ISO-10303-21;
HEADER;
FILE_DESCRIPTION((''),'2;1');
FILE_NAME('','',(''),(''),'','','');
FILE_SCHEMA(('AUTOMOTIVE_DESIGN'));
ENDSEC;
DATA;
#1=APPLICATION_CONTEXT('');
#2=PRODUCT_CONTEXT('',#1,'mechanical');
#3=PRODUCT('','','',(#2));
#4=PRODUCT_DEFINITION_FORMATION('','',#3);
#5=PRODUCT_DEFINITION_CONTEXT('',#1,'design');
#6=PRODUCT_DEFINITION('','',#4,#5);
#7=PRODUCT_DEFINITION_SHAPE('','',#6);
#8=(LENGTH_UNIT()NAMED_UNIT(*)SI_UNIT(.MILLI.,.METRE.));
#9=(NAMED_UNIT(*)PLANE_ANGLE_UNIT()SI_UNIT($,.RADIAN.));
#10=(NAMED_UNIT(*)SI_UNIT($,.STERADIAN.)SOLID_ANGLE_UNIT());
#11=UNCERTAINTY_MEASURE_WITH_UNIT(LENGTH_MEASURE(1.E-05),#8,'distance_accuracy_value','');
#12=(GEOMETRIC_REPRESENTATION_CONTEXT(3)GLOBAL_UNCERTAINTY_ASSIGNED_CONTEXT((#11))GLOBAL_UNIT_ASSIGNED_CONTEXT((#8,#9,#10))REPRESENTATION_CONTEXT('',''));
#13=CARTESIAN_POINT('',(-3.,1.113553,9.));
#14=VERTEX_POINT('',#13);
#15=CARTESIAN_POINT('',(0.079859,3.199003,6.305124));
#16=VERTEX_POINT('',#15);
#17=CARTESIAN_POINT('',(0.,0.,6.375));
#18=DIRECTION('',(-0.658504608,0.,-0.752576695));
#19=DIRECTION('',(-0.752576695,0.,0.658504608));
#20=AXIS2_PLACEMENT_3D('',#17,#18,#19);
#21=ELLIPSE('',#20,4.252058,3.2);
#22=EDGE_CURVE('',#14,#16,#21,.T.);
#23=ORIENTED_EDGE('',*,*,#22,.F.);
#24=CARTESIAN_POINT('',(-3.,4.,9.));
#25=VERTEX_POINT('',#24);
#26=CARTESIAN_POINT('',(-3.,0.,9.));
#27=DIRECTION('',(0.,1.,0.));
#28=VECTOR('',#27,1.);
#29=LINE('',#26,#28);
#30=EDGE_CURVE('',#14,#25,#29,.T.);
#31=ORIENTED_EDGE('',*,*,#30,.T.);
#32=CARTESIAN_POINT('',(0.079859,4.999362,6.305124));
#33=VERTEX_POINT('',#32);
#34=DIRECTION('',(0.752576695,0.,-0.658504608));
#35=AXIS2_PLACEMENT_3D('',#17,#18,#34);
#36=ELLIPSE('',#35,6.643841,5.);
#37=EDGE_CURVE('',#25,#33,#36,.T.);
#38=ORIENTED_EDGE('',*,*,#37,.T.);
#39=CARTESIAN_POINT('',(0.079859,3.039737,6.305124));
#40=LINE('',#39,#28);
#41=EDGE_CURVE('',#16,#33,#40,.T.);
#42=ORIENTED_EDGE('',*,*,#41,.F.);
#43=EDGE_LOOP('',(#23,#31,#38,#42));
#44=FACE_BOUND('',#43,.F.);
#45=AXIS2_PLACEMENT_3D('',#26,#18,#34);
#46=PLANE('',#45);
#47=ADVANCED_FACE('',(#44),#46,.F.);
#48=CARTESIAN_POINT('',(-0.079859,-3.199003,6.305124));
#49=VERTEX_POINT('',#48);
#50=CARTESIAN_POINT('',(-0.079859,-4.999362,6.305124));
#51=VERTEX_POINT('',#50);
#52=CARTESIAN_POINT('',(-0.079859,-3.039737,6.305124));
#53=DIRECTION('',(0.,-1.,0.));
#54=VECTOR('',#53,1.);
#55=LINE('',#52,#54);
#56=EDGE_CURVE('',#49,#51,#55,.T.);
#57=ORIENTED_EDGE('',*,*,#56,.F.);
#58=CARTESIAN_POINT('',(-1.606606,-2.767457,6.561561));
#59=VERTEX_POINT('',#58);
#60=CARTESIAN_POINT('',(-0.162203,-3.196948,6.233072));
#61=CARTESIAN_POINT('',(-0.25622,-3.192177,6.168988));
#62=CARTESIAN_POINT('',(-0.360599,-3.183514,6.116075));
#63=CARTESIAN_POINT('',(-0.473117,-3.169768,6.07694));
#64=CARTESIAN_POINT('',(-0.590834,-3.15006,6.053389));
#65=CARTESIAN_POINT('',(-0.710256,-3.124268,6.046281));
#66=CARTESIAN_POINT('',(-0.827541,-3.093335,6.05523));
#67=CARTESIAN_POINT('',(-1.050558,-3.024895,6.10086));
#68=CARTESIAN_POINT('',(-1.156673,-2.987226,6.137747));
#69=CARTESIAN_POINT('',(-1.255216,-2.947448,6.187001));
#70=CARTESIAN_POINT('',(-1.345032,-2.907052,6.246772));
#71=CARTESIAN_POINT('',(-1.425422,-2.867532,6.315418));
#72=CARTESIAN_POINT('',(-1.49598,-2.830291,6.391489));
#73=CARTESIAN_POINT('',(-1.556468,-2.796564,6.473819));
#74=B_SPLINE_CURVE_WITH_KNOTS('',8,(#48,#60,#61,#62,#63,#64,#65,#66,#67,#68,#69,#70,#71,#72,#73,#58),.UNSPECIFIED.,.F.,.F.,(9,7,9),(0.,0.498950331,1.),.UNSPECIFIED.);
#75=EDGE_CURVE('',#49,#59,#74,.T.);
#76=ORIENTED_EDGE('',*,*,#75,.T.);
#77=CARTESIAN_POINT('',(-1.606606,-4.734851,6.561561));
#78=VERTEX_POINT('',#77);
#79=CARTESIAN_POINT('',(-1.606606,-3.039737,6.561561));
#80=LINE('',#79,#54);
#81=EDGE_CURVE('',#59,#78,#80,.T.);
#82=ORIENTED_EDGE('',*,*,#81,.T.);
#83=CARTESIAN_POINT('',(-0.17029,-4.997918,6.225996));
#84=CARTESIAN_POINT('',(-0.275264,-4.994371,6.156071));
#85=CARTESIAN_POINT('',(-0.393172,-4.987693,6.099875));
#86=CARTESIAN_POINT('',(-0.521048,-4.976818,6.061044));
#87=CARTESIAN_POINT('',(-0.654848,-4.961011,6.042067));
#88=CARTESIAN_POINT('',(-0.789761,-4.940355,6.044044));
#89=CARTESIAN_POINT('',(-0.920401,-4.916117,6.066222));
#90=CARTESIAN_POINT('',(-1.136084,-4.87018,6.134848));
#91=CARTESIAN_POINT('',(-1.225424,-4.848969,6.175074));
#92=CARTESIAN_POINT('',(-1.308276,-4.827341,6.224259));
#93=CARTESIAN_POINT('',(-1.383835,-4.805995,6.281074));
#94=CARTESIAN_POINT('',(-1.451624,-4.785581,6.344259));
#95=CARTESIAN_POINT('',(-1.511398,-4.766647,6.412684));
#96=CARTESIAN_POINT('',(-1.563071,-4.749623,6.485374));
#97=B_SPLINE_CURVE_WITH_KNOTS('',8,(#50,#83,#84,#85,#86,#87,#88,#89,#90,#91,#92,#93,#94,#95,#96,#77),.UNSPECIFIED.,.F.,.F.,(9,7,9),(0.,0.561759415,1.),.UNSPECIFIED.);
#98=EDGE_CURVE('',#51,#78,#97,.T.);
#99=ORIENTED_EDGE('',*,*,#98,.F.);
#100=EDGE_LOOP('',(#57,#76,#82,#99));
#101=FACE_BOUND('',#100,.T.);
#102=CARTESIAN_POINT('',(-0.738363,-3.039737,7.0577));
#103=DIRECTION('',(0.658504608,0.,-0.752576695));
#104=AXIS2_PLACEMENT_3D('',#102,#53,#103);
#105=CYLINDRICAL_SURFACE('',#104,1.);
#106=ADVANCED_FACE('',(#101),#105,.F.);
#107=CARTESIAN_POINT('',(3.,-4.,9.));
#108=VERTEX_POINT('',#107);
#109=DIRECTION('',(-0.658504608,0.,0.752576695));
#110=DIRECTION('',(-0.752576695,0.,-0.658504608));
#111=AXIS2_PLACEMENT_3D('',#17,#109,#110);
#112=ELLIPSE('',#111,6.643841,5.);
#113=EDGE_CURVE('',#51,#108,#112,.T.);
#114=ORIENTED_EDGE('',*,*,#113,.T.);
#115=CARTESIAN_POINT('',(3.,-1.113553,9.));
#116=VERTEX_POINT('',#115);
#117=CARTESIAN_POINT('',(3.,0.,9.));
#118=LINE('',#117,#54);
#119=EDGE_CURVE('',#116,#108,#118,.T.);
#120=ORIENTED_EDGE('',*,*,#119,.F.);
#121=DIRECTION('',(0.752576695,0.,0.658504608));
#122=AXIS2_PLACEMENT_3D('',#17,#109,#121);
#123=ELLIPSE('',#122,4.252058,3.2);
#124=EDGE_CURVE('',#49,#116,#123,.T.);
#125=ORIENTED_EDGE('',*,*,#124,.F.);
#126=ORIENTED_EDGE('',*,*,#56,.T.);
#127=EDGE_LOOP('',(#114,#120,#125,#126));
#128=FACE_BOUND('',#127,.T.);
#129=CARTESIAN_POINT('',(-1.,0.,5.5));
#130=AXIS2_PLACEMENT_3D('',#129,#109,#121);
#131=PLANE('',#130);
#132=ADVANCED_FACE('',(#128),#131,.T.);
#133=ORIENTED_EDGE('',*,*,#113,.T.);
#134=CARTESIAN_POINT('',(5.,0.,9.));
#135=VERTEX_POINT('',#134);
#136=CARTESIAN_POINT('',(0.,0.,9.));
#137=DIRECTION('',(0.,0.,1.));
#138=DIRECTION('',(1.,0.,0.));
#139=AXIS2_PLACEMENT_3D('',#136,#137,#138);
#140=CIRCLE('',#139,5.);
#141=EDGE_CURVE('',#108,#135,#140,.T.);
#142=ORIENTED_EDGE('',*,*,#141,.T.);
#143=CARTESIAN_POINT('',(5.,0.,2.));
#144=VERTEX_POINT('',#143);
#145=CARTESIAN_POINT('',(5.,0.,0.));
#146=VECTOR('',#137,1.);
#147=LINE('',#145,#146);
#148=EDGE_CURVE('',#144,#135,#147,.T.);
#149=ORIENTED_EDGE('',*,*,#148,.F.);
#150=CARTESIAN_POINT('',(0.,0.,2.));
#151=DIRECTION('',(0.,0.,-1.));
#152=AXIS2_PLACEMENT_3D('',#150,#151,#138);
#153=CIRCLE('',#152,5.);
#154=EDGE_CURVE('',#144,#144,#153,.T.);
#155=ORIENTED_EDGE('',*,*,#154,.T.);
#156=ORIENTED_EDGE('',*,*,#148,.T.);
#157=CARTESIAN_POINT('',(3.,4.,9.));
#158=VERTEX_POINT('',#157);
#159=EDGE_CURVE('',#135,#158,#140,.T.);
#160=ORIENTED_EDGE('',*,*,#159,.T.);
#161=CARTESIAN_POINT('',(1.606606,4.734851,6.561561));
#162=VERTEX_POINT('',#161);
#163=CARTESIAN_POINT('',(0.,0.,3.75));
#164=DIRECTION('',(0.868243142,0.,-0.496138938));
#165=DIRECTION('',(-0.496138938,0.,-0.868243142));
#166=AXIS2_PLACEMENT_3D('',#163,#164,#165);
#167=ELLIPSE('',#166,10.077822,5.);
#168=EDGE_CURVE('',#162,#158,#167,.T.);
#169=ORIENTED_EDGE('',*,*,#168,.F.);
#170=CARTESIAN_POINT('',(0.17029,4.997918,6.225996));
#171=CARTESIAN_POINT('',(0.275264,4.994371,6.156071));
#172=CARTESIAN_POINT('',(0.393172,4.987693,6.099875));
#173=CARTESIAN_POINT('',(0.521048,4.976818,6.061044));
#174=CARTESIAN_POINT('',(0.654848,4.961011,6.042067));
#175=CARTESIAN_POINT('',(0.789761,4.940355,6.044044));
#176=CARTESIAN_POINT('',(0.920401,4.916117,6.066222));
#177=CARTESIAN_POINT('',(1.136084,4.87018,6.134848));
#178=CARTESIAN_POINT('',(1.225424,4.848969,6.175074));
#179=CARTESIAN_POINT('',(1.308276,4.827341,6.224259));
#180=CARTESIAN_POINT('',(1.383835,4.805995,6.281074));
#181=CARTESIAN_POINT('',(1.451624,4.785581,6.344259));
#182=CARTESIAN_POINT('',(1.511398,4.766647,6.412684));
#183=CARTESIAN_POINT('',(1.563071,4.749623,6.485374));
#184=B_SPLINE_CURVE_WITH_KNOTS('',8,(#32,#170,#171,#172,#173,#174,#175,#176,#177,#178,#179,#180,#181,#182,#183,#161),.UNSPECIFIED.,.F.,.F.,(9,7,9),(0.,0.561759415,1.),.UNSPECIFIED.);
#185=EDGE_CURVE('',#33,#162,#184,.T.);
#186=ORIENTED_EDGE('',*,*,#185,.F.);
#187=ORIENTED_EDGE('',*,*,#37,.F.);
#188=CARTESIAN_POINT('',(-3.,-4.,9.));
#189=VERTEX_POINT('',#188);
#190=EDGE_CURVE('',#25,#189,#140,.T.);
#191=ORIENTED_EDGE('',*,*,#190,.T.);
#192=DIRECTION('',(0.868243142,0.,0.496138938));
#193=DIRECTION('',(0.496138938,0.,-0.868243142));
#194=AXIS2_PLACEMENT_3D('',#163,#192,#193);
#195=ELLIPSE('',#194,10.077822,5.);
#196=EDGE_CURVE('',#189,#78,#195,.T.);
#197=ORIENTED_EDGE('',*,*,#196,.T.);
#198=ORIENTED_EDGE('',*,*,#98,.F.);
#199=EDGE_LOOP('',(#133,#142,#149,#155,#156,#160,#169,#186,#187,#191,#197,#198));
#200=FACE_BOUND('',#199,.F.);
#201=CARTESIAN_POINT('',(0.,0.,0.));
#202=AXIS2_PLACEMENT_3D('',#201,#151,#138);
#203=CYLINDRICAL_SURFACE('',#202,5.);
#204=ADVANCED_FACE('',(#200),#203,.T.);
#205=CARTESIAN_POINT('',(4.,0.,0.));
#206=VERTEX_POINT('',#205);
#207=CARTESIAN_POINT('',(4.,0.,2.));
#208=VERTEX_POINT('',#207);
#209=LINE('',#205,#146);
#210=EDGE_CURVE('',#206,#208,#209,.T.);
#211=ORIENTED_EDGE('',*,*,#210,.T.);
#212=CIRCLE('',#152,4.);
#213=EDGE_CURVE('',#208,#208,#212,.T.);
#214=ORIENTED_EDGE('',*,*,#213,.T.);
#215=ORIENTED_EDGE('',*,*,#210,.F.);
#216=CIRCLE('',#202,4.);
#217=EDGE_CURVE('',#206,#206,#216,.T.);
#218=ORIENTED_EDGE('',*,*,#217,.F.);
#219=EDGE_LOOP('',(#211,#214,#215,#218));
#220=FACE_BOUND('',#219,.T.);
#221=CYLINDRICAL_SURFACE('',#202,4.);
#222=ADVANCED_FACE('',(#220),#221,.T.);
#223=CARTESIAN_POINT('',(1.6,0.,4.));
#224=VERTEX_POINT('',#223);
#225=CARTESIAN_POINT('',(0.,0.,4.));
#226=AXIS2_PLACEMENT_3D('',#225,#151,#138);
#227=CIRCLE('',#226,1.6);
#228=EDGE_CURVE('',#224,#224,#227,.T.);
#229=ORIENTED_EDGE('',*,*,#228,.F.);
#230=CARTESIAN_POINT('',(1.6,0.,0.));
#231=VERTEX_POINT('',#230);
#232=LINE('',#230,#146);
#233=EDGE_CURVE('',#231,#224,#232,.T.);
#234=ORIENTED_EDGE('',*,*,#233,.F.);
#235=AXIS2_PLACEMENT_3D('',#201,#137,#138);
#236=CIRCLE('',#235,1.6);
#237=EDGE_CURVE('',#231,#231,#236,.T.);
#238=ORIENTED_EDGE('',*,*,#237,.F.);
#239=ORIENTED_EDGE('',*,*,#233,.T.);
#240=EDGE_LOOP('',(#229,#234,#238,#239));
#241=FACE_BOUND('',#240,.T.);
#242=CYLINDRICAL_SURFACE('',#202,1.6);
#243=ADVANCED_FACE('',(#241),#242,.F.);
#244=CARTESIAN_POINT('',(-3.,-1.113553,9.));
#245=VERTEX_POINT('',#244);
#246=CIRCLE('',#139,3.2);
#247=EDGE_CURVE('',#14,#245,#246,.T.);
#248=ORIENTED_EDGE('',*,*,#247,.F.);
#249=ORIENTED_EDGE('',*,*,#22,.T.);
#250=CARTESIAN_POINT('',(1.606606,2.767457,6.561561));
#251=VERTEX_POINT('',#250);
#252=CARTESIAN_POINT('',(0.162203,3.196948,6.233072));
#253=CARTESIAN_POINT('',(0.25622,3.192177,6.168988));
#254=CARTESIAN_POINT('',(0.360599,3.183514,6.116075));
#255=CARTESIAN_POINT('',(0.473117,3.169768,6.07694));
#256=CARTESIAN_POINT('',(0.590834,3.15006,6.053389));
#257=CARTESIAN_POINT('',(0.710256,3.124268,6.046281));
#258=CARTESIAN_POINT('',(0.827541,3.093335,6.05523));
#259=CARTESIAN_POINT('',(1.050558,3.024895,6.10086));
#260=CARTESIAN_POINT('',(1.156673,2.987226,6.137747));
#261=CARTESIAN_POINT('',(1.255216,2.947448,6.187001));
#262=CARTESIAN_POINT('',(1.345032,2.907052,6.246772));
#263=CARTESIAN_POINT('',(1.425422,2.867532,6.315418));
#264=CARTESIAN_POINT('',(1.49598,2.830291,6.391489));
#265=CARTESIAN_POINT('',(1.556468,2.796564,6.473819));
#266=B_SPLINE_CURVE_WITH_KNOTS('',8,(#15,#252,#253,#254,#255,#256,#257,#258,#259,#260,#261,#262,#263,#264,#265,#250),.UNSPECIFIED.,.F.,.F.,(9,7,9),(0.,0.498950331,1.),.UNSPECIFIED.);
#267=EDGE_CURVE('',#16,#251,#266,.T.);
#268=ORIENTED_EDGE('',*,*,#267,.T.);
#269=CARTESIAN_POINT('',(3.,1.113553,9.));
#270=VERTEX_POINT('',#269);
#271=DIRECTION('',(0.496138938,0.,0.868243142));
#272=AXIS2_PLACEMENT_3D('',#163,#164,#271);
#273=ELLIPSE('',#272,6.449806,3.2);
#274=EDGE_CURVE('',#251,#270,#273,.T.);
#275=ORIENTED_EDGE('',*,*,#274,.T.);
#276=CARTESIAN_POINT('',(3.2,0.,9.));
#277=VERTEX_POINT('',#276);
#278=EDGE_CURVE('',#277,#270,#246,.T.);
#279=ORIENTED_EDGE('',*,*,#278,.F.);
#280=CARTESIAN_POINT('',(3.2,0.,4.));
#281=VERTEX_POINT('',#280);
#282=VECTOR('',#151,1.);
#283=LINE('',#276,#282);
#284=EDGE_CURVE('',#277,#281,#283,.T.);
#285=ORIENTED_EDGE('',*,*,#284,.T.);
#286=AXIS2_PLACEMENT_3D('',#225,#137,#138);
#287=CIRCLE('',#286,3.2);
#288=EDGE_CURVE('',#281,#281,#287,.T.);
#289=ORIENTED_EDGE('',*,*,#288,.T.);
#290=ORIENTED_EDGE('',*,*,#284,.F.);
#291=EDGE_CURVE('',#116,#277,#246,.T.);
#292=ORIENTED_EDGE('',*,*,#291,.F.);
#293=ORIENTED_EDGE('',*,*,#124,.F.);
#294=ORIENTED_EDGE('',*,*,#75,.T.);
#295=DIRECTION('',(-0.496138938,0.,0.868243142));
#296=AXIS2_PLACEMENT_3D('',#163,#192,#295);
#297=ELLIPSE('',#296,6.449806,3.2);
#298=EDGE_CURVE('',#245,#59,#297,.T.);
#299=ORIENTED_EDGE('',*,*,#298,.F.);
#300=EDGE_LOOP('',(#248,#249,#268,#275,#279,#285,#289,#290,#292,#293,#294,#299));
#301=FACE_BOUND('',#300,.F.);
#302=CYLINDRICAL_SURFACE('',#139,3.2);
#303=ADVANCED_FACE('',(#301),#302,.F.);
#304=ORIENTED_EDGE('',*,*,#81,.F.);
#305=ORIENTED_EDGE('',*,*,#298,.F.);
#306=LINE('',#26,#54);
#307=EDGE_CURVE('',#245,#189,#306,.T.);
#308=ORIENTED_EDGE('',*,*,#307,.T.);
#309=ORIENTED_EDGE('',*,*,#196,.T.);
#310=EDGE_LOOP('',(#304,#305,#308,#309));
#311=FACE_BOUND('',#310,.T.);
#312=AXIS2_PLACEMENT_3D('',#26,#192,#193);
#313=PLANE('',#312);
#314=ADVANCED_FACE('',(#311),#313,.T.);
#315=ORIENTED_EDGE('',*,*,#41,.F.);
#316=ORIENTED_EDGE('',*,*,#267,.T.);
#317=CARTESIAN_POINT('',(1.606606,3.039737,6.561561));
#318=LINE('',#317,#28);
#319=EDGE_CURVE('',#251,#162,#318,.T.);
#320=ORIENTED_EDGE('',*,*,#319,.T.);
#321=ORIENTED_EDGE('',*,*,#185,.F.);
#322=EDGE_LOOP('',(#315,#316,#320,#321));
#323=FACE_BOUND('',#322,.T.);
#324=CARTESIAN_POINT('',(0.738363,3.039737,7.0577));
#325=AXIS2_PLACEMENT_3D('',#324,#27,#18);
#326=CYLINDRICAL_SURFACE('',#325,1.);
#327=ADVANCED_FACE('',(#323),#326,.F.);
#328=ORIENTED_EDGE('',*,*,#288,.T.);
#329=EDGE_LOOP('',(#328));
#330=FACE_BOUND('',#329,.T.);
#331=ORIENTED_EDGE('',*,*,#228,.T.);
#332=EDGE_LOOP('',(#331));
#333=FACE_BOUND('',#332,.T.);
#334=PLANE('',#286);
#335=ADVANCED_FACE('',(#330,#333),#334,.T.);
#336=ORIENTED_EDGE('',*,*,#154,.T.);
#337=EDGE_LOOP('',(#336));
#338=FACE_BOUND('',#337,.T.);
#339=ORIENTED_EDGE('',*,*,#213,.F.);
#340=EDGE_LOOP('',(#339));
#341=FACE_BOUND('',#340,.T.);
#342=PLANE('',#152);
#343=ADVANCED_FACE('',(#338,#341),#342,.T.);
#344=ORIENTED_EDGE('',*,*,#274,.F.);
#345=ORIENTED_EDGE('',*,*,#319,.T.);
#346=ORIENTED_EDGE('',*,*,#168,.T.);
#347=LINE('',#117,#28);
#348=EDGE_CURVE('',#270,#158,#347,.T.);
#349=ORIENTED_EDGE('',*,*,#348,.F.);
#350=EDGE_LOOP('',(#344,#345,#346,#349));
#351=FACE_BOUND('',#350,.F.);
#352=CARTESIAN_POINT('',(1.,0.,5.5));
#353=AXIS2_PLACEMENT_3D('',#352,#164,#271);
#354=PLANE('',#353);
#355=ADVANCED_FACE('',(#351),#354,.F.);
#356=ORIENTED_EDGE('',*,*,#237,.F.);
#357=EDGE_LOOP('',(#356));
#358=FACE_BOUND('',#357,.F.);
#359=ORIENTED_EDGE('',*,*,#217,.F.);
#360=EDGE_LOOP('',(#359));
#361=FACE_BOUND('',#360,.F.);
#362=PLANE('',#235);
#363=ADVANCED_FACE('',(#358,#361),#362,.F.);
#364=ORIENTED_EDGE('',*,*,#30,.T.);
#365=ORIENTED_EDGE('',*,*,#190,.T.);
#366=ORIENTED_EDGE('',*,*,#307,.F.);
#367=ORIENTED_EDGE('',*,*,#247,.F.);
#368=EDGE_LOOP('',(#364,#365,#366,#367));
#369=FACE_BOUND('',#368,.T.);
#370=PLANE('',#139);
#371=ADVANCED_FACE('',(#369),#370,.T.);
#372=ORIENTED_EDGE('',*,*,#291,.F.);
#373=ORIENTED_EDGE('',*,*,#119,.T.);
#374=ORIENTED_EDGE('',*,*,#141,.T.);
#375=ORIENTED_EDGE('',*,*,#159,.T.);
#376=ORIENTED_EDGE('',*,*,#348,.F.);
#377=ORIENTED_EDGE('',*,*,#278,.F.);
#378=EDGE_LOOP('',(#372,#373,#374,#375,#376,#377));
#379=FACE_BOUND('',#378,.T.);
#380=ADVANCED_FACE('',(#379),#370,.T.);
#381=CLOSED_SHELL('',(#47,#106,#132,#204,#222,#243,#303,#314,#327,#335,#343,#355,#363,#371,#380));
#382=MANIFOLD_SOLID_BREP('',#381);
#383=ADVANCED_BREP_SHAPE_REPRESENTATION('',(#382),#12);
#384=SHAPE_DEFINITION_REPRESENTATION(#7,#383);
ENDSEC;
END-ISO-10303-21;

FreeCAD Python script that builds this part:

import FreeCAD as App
import Part
import Sketcher

V = App.Vector


def edges_at(feature, points):
    """Names of the edges that pass closest to the given points."""
    edges = feature.Shape.Edges
    near = lambda p: min(range(len(edges)), key=lambda i: edges[i].distToShape(Part.Vertex(*p))[0])
    return sorted({f"Edge{near(p) + 1}" for p in points})


def add_polygon(sketch, points):
    """Adds a closed chain of lines whose ends are joined by coincident constraints."""
    first, n = sketch.GeometryCount, len(points)
    for a, b in zip(points, points[1:] + points[:1]):
        sketch.addGeometry(Part.LineSegment(App.Vector(*a, 0), App.Vector(*b, 0)), False)
    for i in range(n):
        sketch.addConstraint(Sketcher.Constraint("Coincident", first + i, 2, first + (i + 1) % n, 1))

doc = App.newDocument("Part")
params = doc.addObject("Spreadsheet::Sheet", "Params")
for row, (alias, value) in enumerate([
    ("sketch1_width", "6 mm"),
    ("pad1_length", "10 mm"),
    ("sketch2_width", "6 mm"),
    ("pad2_length", "12 mm"),
    ("sketch3_diameter", "10 mm"),
    ("sketch3_diameter2", "3.2 mm"),
    ("pad3_length", "9 mm"),
    ("sketch4_diameter", "6.4 mm"),
    ("pocket1_length", "5 mm"),
    ("sketch5_diameter", "10 mm"),
    ("sketch5_diameter2", "8 mm"),
    ("pocket2_length", "2 mm"),
    ("fillet_radius", "1 mm"),
], start=1):
    params.set(f"A{row}", alias)
    params.set(f"B{row}", "=" + value)
    params.setAlias(f"B{row}", alias)

body = doc.addObject("PartDesign::Body", "Body")

sketch1 = body.newObject("Sketcher::SketchObject", "Sketch")
sketch1.AttachmentSupport = (doc.getObject("XZ_Plane"), [""])
sketch1.MapMode = "FlatFace"
add_polygon(sketch1, [(-3, 9), (1, 5.5), (3, 9)])
sketch1.addConstraint([
    Sketcher.Constraint("Horizontal", 2),
    Sketcher.Constraint("DistanceX", 2, 2, 2, 1, 6.0),
    Sketcher.Constraint("DistanceX", -1, 1, 0, 2, 1.0),
    Sketcher.Constraint("DistanceX", -1, 1, 1, 2, 3.0),
    Sketcher.Constraint("DistanceY", -1, 1, 1, 2, 9.0),
    Sketcher.Constraint("DistanceY", -1, 1, 0, 2, 5.5),
])
sketch1.setExpression("Constraints[4]", "Params.sketch1_width")
pad1 = body.newObject("PartDesign::Pad", "Pad")
pad1.Profile = sketch1
pad1.setExpression("Length", "Params.pad1_length")
pad1.Reversed = True
body2 = doc.addObject("PartDesign::Body", "Body001")

sketch2 = body2.newObject("Sketcher::SketchObject", "Sketch001")
sketch2.AttachmentSupport = (doc.getObject("XZ_Plane001"), [""])
sketch2.MapMode = "FlatFace"
add_polygon(sketch2, [(-3, 9), (-1, 5.5), (3, 9)])
sketch2.addConstraint([
    Sketcher.Constraint("Horizontal", 2),
    Sketcher.Constraint("DistanceX", 2, 2, 2, 1, 6.0),
    Sketcher.Constraint("DistanceX", 0, 2, -1, 1, 1.0),
    Sketcher.Constraint("DistanceX", -1, 1, 1, 2, 3.0),
    Sketcher.Constraint("DistanceY", -1, 1, 1, 2, 9.0),
    Sketcher.Constraint("DistanceY", -1, 1, 0, 2, 5.5),
])
sketch2.setExpression("Constraints[4]", "Params.sketch2_width")
pad2 = body2.newObject("PartDesign::Pad", "Pad001")
pad2.Profile = sketch2
pad2.setExpression("Length", "Params.pad2_length")
body3 = doc.addObject("PartDesign::Body", "Body002")

sketch3 = body3.newObject("Sketcher::SketchObject", "Sketch002")
sketch3.AttachmentSupport = (doc.getObject("XY_Plane002"), [""])
sketch3.MapMode = "FlatFace"
sketch3.addGeometry([
    Part.Circle(V(0, 0, 0), V(0, 0, 1), 5),
    Part.Circle(V(0, 0, 0), V(0, 0, 1), 1.6),
], False)
sketch3.addConstraint([
    Sketcher.Constraint("Coincident", 0, 3, -1, 1),
    Sketcher.Constraint("Coincident", 1, 3, -1, 1),
    Sketcher.Constraint("Diameter", 0, 10.0),
    Sketcher.Constraint("Diameter", 1, 3.2),
])
sketch3.setExpression("Constraints[2]", "Params.sketch3_diameter")
sketch3.setExpression("Constraints[3]", "Params.sketch3_diameter2")
pad3 = body3.newObject("PartDesign::Pad", "Pad002")
pad3.Profile = sketch3
pad3.setExpression("Length", "Params.pad3_length")

sketch4 = body3.newObject("Sketcher::SketchObject", "Sketch003")
sketch4.AttachmentSupport = (doc.getObject("XY_Plane002"), [""])
sketch4.MapMode = "FlatFace"
sketch4.AttachmentOffset = App.Placement(V(0, 0, 9), App.Rotation())
sketch4.addGeometry(Part.Circle(V(0, 0, 0), V(0, 0, 1), 3.2), False)
sketch4.addConstraint([
    Sketcher.Constraint("Coincident", 0, 3, -1, 1),
    Sketcher.Constraint("Diameter", 0, 6.4),
])
sketch4.setExpression("Constraints[1]", "Params.sketch4_diameter")
pocket1 = body3.newObject("PartDesign::Pocket", "Pocket")
pocket1.Profile = sketch4
pocket1.setExpression("Length", "Params.pocket1_length")

sketch5 = body3.newObject("Sketcher::SketchObject", "Sketch004")
sketch5.AttachmentSupport = (doc.getObject("XY_Plane002"), [""])
sketch5.MapMode = "FlatFace"
sketch5.addGeometry([
    Part.Circle(V(0, 0, 0), V(0, 0, 1), 5),
    Part.Circle(V(0, 0, 0), V(0, 0, 1), 4),
], False)
sketch5.addConstraint([
    Sketcher.Constraint("Coincident", 0, 3, -1, 1),
    Sketcher.Constraint("Coincident", 1, 3, -1, 1),
    Sketcher.Constraint("Diameter", 0, 10.0),
    Sketcher.Constraint("Diameter", 1, 8.0),
])
sketch5.setExpression("Constraints[2]", "Params.sketch5_diameter")
sketch5.setExpression("Constraints[3]", "Params.sketch5_diameter2")
pocket2 = body3.newObject("PartDesign::Pocket", "Pocket001")
pocket2.Profile = sketch5
pocket2.setExpression("Length", "Params.pocket2_length")
pocket2.Reversed = True
doc.recompute()

boolean = body3.newObject("PartDesign::Boolean", "Boolean")
boolean.Type = "Cut"
boolean.addObjects([body2])
doc.recompute()

boolean2 = body3.newObject("PartDesign::Boolean", "Boolean001")
boolean2.Type = "Cut"
boolean2.addObjects([body])
doc.recompute()

fillet = body3.newObject("PartDesign::Fillet", "Fillet")
fillet.Base = (boolean2, edges_at(boolean2, [(1, 3.969, 5.5), (-1, -3.969, 5.5)]))
fillet.setExpression("Radius", "Params.fillet_radius")

doc.recompute()
